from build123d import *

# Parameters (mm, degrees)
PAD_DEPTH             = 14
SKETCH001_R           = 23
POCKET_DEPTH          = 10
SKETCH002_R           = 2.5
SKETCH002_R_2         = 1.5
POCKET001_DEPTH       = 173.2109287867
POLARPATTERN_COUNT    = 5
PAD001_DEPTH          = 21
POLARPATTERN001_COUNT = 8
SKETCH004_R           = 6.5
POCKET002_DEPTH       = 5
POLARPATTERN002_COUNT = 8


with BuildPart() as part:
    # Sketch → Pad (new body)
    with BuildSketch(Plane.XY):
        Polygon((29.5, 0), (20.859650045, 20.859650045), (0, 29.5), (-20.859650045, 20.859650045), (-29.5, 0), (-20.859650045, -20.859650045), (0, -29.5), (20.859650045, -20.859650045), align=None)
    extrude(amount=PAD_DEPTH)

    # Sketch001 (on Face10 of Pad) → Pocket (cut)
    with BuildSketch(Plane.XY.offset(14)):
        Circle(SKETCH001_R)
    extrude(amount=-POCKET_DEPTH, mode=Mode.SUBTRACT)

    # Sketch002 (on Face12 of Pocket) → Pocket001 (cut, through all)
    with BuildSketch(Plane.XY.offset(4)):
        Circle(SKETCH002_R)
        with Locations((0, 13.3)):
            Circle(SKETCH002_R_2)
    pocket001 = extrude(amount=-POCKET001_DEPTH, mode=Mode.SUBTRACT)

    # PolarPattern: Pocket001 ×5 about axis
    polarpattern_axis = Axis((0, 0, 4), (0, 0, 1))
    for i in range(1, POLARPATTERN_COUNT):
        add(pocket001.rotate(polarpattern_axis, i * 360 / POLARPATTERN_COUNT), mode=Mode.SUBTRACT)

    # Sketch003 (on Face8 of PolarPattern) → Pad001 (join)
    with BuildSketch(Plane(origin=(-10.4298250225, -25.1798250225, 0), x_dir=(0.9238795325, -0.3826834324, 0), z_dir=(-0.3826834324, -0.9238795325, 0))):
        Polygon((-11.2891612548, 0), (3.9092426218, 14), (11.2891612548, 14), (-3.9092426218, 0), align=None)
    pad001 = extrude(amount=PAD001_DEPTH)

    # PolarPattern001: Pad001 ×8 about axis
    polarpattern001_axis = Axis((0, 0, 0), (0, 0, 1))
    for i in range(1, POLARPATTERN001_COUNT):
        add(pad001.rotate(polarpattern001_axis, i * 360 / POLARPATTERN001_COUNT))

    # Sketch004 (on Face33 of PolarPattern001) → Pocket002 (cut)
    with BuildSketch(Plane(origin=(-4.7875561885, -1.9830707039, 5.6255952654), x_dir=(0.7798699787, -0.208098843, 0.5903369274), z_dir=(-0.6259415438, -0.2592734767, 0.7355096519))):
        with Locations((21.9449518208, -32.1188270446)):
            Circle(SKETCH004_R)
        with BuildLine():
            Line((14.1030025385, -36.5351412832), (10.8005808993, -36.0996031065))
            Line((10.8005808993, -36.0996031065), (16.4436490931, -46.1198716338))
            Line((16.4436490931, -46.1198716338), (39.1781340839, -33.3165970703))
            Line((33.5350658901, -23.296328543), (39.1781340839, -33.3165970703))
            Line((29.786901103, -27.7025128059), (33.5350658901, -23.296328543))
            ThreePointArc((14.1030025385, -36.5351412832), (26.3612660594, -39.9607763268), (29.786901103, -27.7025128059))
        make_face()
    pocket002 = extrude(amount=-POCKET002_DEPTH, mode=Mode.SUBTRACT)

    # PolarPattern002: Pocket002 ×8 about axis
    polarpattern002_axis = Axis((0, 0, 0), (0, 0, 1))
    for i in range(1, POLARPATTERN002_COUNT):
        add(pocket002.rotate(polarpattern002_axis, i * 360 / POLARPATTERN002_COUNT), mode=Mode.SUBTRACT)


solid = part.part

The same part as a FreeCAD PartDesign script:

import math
import FreeCAD as App
import Part
import Sketcher

V = App.Vector
Q = App.Units.Quantity


def add_polygon(sketch, points):
    """Adds a closed chain of lines whose ends are joined by coincident constraints."""
    first, n = sketch.GeometryCount, len(points)
    for a, b in zip(points, points[1:] + points[:1]):
        sketch.addGeometry(Part.LineSegment(App.Vector(*a, 0), App.Vector(*b, 0)), False)
    for i in range(n):
        sketch.addConstraint(Sketcher.Constraint("Coincident", first + i, 2, first + (i + 1) % n, 1))

doc = App.newDocument("Part")
body = doc.addObject("PartDesign::Body", "Body")

# Sketch on XY plane
sketch1 = doc.addObject("Sketcher::SketchObject", "Sketch")
body.addObject(sketch1)
sketch1.AttachmentSupport = (doc.XY_Plane, [""])
sketch1.MapMode = "FlatFace"
add_polygon(sketch1, [(30, 0), (21, 21), (0, 30), (-21, 21), (-30, 0), (-21, -21), (0, -30), (21, -21)])  # lines 0-7
sketch1.addConstraint([
    Sketcher.Constraint("Symmetric", 0, 2, 4, 2, -1, 1),
    Sketcher.Constraint("Symmetric", 1, 2, 5, 2, -1, 1),
    Sketcher.Constraint("Symmetric", 2, 2, 6, 2, -1, 1),
    Sketcher.Constraint("Symmetric", 3, 2, 7, 2, -1, 1),
    Sketcher.Constraint("Symmetric", 0, 2, 2, 2, -2),
    Sketcher.Constraint("PointOnObject", 1, 2, -2),
    Sketcher.Constraint("PointOnObject", 3, 2, -1),
    Sketcher.Constraint("Perpendicular", 0, 2),
    Sketcher.Constraint("Equal", 0, 1),
    Sketcher.Constraint("Angle", 0, Q("112.5 deg")),
    Sketcher.Constraint("DistanceY", 5, 2, 1, 2, 59.0),
])
pad1 = doc.addObject("PartDesign::Pad", "Pad")
body.addObject(pad1)
pad1.Profile = sketch1
pad1.Length = 14

# Sketch on XY plane
sketch2 = doc.addObject("Sketcher::SketchObject", "Sketch001")
body.addObject(sketch2)
sketch2.AttachmentSupport = (doc.XY_Plane, [""])
sketch2.MapMode = "FlatFace"
sketch2.AttachmentOffset = App.Placement(V(0, 0, 14), App.Rotation())
sketch2.addGeometry(Part.Circle(V(0, 0, 0), V(0, 0, 1), 23), False)
sketch2.addConstraint([
    Sketcher.Constraint("Coincident", 0, 3, -1, 1),
    Sketcher.Constraint("Diameter", 0, 46.0),
])
pocket1 = doc.addObject("PartDesign::Pocket", "Pocket")
body.addObject(pocket1)
pocket1.Profile = sketch2
pocket1.Length = 10

# Sketch on XY plane
sketch3 = doc.addObject("Sketcher::SketchObject", "Sketch002")
body.addObject(sketch3)
sketch3.AttachmentSupport = (doc.XY_Plane, [""])
sketch3.MapMode = "FlatFace"
sketch3.AttachmentOffset = App.Placement(V(0, 0, 4), App.Rotation())
sketch3.addGeometry([
    Part.Circle(V(0, 0, 0), V(0, 0, 1), 2.5),
    Part.Circle(V(0, 13.3, 0), V(0, 0, 1), 1.5),
], False)
sketch3.addConstraint([
    Sketcher.Constraint("Coincident", 0, 3, -1, 1),
    Sketcher.Constraint("PointOnObject", 1, 3, -2),
    Sketcher.Constraint("Diameter", 0, 5.0),
    Sketcher.Constraint("Diameter", 1, 3.0),
    Sketcher.Constraint("DistanceY", -1, 1, 1, 3, 13.3),
])
pocket2 = doc.addObject("PartDesign::Pocket", "Pocket001")
body.addObject(pocket2)
pocket2.Profile = sketch3
pocket2.Type = "ThroughAll"
doc.recompute()

polarpattern = doc.addObject("PartDesign::PolarPattern", "PolarPattern")
body.addObject(polarpattern)
polarpattern.Originals = [pocket2]
polarpattern.Axis = (doc.Z_Axis, [""])
polarpattern.Angle = 360
polarpattern.Occurrences = 5
body.Tip = polarpattern

# Sketch on an angled plane
sketch4 = doc.addObject("Sketcher::SketchObject", "Sketch003")
body.addObject(sketch4)
sketch4.Placement = App.Placement(V(-10.429825, -25.179825, 0), App.Rotation(V(0.923879532, -0.382683432, 0), V(0, 0, 0.999999999), V(-0.382683432, -0.923879532, 0), "ZXY"))
add_polygon(sketch4, [(4, 14), (-11, 0), (-4, 0), (11, 14)])  # lines 0-3
sketch4.addConstraint([
    Sketcher.Constraint("Horizontal", 1),
    Sketcher.Constraint("Horizontal", 3),
    Sketcher.Constraint("PointOnObject", 0, 2, -1),
    Sketcher.Constraint("Parallel", 0, 2),
    Sketcher.Constraint("DistanceY", -1, 1, 2, 2, 14.0),
    Sketcher.Constraint("DistanceX", 1, 1, 1, 2, 7.379919),
    Sketcher.Constraint("DistanceX", 0, 2, -1, 1, 11.289161),
    Sketcher.Constraint("DistanceX", -1, 1, 2, 2, 11.289161),
])
pad2 = doc.addObject("PartDesign::Pad", "Pad001")
body.addObject(pad2)
pad2.Profile = sketch4
pad2.Length = 21
doc.recompute()

polarpattern2 = doc.addObject("PartDesign::PolarPattern", "PolarPattern001")
body.addObject(polarpattern2)
polarpattern2.Originals = [pad2]
polarpattern2.Axis = (doc.Z_Axis, [""])
polarpattern2.Angle = 360
polarpattern2.Occurrences = 8
body.Tip = polarpattern2

# Sketch on an angled plane
sketch5 = doc.addObject("Sketcher::SketchObject", "Sketch004")
body.addObject(sketch5)
sketch5.Placement = App.Placement(V(-4.787556, -1.983071, 5.625595), App.Rotation(V(0.779869979, -0.208098843, 0.590336927), V(0, 0.943118304, 0.332457312), V(-0.625941544, -0.259273477, 0.735509652), "ZXY"))
sketch5.addGeometry([
    Part.Circle(V(21.9, -32.1, 0), V(0, 0, 1), 6.5),  # 0
    Part.LineSegment(V(14.1, -36.5, 0), V(10.8, -36.1, 0)),  # 1
    Part.LineSegment(V(10.8, -36.1, 0), V(16.4, -46.1, 0)),  # 2
    Part.LineSegment(V(16.4, -46.1, 0), V(39.2, -33.3, 0)),  # 3
    Part.LineSegment(V(39.2, -33.3, 0), V(33.5, -23.3, 0)),  # 4
    Part.LineSegment(V(33.5, -23.3, 0), V(29.8, -27.7, 0)),  # 5
    Part.ArcOfCircle(Part.Circle(V(21.9, -32.1, 0), V(0, 0, 1), 9), math.radians(-151), math.radians(29)),  # 6
], False)
sketch5.addConstraint([
    Sketcher.Constraint("Coincident", 1, 2, 2, 1),
    Sketcher.Constraint("Coincident", 2, 2, 3, 1),
    Sketcher.Constraint("Coincident", 3, 2, 4, 1),
    Sketcher.Constraint("Coincident", 4, 2, 5, 1),
    Sketcher.Constraint("Coincident", 5, 2, 6, 2),
    Sketcher.Constraint("Coincident", 6, 1, 1, 1),
    Sketcher.Constraint("Coincident", 6, 3, 0, 3),
    Sketcher.Constraint("Perpendicular", 2, 3),
    Sketcher.Constraint("Perpendicular", 3, 4),
    Sketcher.Constraint("Equal", 2, 4),
    Sketcher.Constraint("Diameter", 0, 13.0),
    Sketcher.Constraint("Radius", 6, 9.0),
    Sketcher.Constraint("Distance", 2, 11.5),
    Sketcher.Constraint("DistanceX", -1, 1, 5, 2, 29.786901),
    Sketcher.Constraint("DistanceY", 0, 3, 4, 2, 8.822499),
    Sketcher.Constraint("DistanceX", 6, 1, 5, 2, 15.683899),
    Sketcher.Constraint("Distance", 1, 3.331018),
    Sketcher.Constraint("Distance", 5, 5.784738),
    Sketcher.Constraint("DistanceX", -1, 1, 0, 3, 21.944952),
    Sketcher.Constraint("DistanceX", -1, 1, 1, 2, 10.800581),
    Sketcher.Constraint("DistanceY", 2, 2, -1, 1, 46.119872),
])
pocket3 = doc.addObject("PartDesign::Pocket", "Pocket002")
body.addObject(pocket3)
pocket3.Profile = sketch5
pocket3.Length = 5
doc.recompute()

polarpattern3 = doc.addObject("PartDesign::PolarPattern", "PolarPattern002")
body.addObject(polarpattern3)
polarpattern3.Originals = [pocket3]
polarpattern3.Axis = (doc.Z_Axis, [""])
polarpattern3.Angle = 360
polarpattern3.Occurrences = 8
body.Tip = polarpattern3

doc.recompute()
